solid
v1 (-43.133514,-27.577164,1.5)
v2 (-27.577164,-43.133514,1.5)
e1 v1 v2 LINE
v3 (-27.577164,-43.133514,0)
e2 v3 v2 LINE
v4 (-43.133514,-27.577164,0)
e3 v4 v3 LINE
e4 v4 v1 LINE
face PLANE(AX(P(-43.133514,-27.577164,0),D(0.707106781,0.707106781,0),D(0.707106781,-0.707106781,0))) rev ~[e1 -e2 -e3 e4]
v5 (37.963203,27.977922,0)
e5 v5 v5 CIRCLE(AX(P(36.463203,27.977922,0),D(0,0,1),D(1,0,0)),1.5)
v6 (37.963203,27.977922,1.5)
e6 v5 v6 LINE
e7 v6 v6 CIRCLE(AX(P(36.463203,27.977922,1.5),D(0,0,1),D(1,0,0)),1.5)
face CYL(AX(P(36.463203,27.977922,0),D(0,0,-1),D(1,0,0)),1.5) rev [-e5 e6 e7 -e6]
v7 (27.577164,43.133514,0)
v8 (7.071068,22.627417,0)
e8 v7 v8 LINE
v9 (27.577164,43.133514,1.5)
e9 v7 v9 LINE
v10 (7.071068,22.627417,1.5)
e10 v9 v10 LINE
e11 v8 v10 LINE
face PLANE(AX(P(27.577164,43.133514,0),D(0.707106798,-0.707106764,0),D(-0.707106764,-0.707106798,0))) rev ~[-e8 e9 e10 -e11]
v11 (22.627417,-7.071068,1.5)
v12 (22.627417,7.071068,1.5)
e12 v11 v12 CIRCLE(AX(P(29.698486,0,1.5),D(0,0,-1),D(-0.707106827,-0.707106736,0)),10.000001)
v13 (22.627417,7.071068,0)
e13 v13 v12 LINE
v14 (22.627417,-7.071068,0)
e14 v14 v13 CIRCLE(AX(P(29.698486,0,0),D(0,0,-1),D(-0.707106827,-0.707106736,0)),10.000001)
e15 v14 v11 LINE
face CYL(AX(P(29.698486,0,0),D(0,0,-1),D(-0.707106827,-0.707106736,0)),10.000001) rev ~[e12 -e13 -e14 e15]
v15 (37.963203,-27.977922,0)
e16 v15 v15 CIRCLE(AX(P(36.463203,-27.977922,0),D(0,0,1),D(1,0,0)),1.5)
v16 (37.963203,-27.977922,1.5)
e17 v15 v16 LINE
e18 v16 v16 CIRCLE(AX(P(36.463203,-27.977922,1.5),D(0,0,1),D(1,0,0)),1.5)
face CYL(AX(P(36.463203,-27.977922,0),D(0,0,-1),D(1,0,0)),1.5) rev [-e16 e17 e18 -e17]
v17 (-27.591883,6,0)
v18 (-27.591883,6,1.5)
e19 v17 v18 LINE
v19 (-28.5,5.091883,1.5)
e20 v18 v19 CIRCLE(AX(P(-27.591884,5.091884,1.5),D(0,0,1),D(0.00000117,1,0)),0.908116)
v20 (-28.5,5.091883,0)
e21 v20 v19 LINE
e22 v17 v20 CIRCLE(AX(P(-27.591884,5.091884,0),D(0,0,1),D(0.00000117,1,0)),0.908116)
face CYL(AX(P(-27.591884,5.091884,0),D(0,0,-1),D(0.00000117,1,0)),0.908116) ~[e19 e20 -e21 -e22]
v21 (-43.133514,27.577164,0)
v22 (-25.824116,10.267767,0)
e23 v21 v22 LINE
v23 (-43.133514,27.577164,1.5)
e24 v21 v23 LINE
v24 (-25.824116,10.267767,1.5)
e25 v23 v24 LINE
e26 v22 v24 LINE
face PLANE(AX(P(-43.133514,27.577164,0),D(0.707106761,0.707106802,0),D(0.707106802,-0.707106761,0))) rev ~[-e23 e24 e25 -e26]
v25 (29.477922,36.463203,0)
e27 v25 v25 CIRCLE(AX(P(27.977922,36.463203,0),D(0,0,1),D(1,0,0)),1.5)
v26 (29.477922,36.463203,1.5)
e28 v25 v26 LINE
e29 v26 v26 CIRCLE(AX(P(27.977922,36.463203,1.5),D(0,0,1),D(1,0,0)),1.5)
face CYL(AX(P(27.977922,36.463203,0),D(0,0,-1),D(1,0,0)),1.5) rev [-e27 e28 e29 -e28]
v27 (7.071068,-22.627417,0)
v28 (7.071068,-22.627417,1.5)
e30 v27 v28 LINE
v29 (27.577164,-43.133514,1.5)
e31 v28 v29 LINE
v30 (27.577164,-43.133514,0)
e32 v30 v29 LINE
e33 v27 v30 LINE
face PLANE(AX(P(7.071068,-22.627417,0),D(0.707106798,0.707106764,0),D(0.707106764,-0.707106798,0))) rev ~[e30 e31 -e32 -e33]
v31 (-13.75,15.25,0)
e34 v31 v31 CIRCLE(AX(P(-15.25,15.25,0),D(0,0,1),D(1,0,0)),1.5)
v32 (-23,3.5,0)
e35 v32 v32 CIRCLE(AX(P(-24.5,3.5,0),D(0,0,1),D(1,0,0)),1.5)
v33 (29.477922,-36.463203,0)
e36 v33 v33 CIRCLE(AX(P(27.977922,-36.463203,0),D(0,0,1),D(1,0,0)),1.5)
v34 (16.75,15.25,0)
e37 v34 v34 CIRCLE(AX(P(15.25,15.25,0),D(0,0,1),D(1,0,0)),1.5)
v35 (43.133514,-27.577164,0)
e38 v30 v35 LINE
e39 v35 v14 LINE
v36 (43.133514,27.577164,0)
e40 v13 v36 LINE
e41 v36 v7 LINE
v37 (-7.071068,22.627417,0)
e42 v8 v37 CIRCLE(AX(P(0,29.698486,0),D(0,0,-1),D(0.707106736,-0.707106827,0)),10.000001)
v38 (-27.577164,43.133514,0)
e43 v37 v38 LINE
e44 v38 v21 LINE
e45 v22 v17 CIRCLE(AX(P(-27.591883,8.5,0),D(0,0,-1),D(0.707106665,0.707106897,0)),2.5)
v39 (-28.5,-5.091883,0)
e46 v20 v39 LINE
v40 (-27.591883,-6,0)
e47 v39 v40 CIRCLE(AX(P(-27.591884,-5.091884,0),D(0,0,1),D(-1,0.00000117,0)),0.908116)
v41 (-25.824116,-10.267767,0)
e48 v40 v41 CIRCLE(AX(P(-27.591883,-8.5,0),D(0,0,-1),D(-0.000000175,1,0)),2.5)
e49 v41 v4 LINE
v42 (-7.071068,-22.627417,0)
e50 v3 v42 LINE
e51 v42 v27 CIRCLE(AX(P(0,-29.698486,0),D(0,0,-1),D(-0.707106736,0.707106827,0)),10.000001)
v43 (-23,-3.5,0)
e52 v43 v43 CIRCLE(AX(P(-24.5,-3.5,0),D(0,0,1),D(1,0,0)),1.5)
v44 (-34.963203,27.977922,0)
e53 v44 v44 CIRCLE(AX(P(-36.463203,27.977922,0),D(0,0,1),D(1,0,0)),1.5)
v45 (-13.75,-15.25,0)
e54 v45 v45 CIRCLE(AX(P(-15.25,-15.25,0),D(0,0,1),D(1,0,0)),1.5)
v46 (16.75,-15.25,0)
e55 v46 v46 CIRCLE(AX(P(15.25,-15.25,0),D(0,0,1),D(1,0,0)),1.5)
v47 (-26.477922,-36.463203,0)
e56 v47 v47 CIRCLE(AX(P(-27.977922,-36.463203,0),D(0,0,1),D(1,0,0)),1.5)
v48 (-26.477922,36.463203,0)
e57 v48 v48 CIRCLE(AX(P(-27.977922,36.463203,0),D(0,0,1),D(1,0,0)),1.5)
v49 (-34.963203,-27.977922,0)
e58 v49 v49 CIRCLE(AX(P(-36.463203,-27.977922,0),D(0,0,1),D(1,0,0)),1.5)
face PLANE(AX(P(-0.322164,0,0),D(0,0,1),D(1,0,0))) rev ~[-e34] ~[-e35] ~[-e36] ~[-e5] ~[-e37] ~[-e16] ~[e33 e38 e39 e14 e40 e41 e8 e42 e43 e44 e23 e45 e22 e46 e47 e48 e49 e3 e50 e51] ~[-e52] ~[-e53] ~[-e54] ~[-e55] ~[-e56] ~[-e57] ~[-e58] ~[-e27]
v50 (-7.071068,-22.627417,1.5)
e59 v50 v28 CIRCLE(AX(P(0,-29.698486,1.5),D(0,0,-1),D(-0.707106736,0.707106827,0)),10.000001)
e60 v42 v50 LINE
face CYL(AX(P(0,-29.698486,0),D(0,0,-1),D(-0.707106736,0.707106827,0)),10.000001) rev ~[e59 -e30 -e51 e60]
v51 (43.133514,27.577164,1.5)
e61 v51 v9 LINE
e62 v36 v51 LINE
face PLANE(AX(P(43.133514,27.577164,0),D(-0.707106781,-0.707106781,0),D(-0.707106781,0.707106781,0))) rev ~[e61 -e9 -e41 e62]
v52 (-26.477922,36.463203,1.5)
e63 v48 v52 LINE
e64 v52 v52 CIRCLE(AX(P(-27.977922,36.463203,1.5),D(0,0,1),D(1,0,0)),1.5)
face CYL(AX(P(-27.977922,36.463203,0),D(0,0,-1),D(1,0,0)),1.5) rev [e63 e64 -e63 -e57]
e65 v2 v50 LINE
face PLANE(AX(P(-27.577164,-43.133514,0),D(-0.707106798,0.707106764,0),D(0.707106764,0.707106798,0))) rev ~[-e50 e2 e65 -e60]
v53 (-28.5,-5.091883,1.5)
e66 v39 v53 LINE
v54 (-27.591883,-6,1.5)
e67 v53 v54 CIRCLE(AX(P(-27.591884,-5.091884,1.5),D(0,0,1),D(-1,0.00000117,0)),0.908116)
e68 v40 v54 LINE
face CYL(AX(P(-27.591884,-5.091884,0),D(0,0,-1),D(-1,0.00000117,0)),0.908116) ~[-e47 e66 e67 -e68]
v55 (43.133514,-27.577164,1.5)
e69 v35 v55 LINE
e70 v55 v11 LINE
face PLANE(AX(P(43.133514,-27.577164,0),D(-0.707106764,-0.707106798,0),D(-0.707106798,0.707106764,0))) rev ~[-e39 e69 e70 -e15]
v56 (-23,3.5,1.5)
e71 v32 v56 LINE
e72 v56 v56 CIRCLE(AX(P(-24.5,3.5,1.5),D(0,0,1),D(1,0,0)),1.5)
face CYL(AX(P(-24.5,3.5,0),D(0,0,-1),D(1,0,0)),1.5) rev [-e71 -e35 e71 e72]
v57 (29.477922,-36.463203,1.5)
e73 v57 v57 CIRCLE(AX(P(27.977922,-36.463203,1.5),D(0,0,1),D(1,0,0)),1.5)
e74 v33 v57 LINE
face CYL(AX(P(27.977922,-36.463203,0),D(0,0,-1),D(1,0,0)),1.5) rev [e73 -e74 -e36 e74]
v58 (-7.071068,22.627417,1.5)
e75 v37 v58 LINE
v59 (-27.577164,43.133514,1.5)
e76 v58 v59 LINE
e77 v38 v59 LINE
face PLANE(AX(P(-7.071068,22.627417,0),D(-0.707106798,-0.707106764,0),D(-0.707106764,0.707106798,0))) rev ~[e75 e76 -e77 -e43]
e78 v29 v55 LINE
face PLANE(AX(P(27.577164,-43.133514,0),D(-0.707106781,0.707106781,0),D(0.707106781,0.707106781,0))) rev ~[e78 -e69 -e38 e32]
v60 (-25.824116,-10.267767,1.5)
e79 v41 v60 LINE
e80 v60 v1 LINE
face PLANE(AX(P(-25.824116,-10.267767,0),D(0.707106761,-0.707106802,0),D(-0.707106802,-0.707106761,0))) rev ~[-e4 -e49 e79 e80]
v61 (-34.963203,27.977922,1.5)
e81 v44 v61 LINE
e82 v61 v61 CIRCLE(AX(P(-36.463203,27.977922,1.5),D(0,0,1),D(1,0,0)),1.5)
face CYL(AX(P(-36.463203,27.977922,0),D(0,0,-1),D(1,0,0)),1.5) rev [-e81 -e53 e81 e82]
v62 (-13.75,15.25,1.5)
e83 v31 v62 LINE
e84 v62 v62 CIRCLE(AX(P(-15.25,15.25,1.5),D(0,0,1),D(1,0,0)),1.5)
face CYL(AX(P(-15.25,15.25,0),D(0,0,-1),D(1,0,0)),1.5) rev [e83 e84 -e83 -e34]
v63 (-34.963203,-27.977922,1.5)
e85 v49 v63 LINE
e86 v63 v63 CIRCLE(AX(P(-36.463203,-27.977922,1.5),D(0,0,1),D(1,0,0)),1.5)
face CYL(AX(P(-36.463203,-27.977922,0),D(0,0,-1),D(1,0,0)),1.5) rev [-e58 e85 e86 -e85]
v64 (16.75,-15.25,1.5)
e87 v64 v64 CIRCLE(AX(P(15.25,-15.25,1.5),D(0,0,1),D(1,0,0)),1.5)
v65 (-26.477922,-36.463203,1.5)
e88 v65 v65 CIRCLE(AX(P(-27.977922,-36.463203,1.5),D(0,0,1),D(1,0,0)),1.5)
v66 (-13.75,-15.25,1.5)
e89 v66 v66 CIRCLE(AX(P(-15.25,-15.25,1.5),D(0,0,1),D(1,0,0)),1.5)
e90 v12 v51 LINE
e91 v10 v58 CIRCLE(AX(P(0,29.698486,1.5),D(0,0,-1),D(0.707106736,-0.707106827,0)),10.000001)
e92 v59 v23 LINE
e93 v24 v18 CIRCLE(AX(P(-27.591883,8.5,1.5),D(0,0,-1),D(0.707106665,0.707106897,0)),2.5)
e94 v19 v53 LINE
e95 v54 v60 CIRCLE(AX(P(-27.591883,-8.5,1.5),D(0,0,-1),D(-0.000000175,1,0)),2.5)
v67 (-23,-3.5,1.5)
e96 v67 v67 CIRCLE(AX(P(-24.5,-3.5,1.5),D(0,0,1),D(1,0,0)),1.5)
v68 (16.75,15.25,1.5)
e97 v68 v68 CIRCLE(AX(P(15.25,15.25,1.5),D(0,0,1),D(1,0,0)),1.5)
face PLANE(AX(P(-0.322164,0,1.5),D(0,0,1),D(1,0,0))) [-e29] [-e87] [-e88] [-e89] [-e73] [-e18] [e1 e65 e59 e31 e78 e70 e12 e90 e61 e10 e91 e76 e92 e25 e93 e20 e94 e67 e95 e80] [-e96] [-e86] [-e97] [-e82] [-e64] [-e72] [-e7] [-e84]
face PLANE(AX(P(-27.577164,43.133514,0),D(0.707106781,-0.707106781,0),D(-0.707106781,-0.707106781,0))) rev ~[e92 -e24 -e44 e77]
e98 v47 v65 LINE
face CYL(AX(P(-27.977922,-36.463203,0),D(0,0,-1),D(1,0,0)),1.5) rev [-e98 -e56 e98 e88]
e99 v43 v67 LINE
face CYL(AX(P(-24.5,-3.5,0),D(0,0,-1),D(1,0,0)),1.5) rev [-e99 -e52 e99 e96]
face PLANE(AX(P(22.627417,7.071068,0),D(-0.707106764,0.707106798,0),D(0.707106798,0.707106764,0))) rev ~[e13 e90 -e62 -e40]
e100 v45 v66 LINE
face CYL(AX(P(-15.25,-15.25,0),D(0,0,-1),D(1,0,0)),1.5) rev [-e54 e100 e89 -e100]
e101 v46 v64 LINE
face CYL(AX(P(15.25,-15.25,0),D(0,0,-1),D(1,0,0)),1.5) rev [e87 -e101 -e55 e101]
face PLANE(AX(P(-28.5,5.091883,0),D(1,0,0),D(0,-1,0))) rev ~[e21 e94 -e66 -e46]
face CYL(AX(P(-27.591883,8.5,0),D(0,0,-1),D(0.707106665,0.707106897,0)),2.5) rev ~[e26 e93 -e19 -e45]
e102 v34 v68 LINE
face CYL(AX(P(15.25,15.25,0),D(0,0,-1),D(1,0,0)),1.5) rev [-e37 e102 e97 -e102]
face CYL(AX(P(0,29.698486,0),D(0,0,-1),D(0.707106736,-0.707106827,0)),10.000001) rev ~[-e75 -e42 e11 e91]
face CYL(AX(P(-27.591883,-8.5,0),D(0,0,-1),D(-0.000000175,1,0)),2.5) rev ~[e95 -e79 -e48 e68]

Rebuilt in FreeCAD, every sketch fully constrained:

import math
import FreeCAD as App
import Part
import Sketcher
Q = App.Units.Quantity

doc = App.newDocument("Part")
body = doc.addObject("PartDesign::Body", "Body")

sketch1 = body.newObject("Sketcher::SketchObject", "Sketch")
sketch1.AttachmentSupport = (doc.getObject("XY_Plane"), [""])
sketch1.MapMode = "FlatFace"
sketch1.addGeometry(Part.LineSegment(App.Vector(-27.6, 43.1, 0), App.Vector(-43.1, 27.6, 0)), False)
sketch1.addGeometry(Part.LineSegment(App.Vector(-43.1, 27.6, 0), App.Vector(-25.8, 10.3, 0)), False)
sketch1.addGeometry(Part.ArcOfCircle(Part.Circle(App.Vector(-27.6, 8.5, 0), App.Vector(0, 0, 1), 2.5), math.radians(-90), math.radians(45)), False)
sketch1.addGeometry(Part.ArcOfCircle(Part.Circle(App.Vector(-27.6, 5.1, 0), App.Vector(0, 0, 1), 0.9), math.radians(90), math.radians(180)), False)
sketch1.addGeometry(Part.LineSegment(App.Vector(-28.5, 5.1, 0), App.Vector(-28.5, -5.1, 0)), False)
sketch1.addGeometry(Part.ArcOfCircle(Part.Circle(App.Vector(-27.6, -5.1, 0), App.Vector(0, 0, 1), 0.9), math.radians(180), math.radians(270)), False)
sketch1.addGeometry(Part.ArcOfCircle(Part.Circle(App.Vector(-27.6, -8.5, 0), App.Vector(0, 0, 1), 2.5), math.radians(-45), math.radians(90)), False)
sketch1.addGeometry(Part.LineSegment(App.Vector(-25.8, -10.3, 0), App.Vector(-43.1, -27.6, 0)), False)
sketch1.addGeometry(Part.LineSegment(App.Vector(-43.1, -27.6, 0), App.Vector(-27.6, -43.1, 0)), False)
sketch1.addGeometry(Part.LineSegment(App.Vector(-27.6, -43.1, 0), App.Vector(-7.1, -22.6, 0)), False)
sketch1.addGeometry(Part.ArcOfCircle(Part.Circle(App.Vector(0, -29.7, 0), App.Vector(0, 0, 1), 10), math.radians(45), math.radians(135)), False)
sketch1.addGeometry(Part.LineSegment(App.Vector(7.1, -22.6, 0), App.Vector(27.6, -43.1, 0)), False)
sketch1.addGeometry(Part.LineSegment(App.Vector(27.6, -43.1, 0), App.Vector(43.1, -27.6, 0)), False)
sketch1.addGeometry(Part.LineSegment(App.Vector(43.1, -27.6, 0), App.Vector(22.6, -7.1, 0)), False)
sketch1.addGeometry(Part.ArcOfCircle(Part.Circle(App.Vector(29.7, 0, 0), App.Vector(0, 0, 1), 10), math.radians(135), math.radians(225)), False)
sketch1.addGeometry(Part.LineSegment(App.Vector(22.6, 7.1, 0), App.Vector(43.1, 27.6, 0)), False)
sketch1.addGeometry(Part.LineSegment(App.Vector(43.1, 27.6, 0), App.Vector(27.6, 43.1, 0)), False)
sketch1.addGeometry(Part.LineSegment(App.Vector(27.6, 43.1, 0), App.Vector(7.1, 22.6, 0)), False)
sketch1.addGeometry(Part.ArcOfCircle(Part.Circle(App.Vector(0, 29.7, 0), App.Vector(0, 0, 1), 10), math.radians(-135), math.radians(-45)), False)
sketch1.addGeometry(Part.LineSegment(App.Vector(-7.1, 22.6, 0), App.Vector(-27.6, 43.1, 0)), False)
sketch1.addGeometry(Part.Circle(App.Vector(-28, -36.5, 0), App.Vector(0, 0, 1), 1.5), False)
sketch1.addGeometry(Part.Circle(App.Vector(-36.5, -28, 0), App.Vector(0, 0, 1), 1.5), False)
sketch1.addGeometry(Part.Circle(App.Vector(-24.5, -3.5, 0), App.Vector(0, 0, 1), 1.5), False)
sketch1.addGeometry(Part.Circle(App.Vector(-15.2, -15.2, 0), App.Vector(0, 0, 1), 1.5), False)
sketch1.addGeometry(Part.Circle(App.Vector(28, -36.5, 0), App.Vector(0, 0, 1), 1.5), False)
sketch1.addGeometry(Part.Circle(App.Vector(36.5, -28, 0), App.Vector(0, 0, 1), 1.5), False)
sketch1.addGeometry(Part.Circle(App.Vector(15.2, -15.2, 0), App.Vector(0, 0, 1), 1.5), False)
sketch1.addGeometry(Part.Circle(App.Vector(-24.5, 3.5, 0), App.Vector(0, 0, 1), 1.5), False)
sketch1.addGeometry(Part.Circle(App.Vector(-15.2, 15.2, 0), App.Vector(0, 0, 1), 1.5), False)
sketch1.addGeometry(Part.Circle(App.Vector(-36.5, 28, 0), App.Vector(0, 0, 1), 1.5), False)
sketch1.addGeometry(Part.Circle(App.Vector(-28, 36.5, 0), App.Vector(0, 0, 1), 1.5), False)
sketch1.addGeometry(Part.Circle(App.Vector(15.2, 15.2, 0), App.Vector(0, 0, 1), 1.5), False)
sketch1.addGeometry(Part.Circle(App.Vector(36.5, 28, 0), App.Vector(0, 0, 1), 1.5), False)
sketch1.addGeometry(Part.Circle(App.Vector(28, 36.5, 0), App.Vector(0, 0, 1), 1.5), False)
sketch1.addConstraint(Sketcher.Constraint("Coincident", 0, 2, 1, 1))
sketch1.addConstraint(Sketcher.Constraint("Tangent", 1, 2, 2, 2))
sketch1.addConstraint(Sketcher.Constraint("Tangent", 2, 1, 3, 1))
sketch1.addConstraint(Sketcher.Constraint("Tangent", 3, 2, 4, 1))
sketch1.addConstraint(Sketcher.Constraint("Tangent", 4, 2, 5, 1))
sketch1.addConstraint(Sketcher.Constraint("Tangent", 5, 2, 6, 2))
sketch1.addConstraint(Sketcher.Constraint("Tangent", 6, 1, 7, 1))
sketch1.addConstraint(Sketcher.Constraint("Coincident", 7, 2, 8, 1))
sketch1.addConstraint(Sketcher.Constraint("Coincident", 8, 2, 9, 1))
sketch1.addConstraint(Sketcher.Constraint("Tangent", 9, 2, 10, 2))
sketch1.addConstraint(Sketcher.Constraint("Tangent", 10, 1, 11, 1))
sketch1.addConstraint(Sketcher.Constraint("Coincident", 11, 2, 12, 1))
sketch1.addConstraint(Sketcher.Constraint("Coincident", 12, 2, 13, 1))
sketch1.addConstraint(Sketcher.Constraint("Tangent", 13, 2, 14, 2))
sketch1.addConstraint(Sketcher.Constraint("Tangent", 14, 1, 15, 1))
sketch1.addConstraint(Sketcher.Constraint("Coincident", 15, 2, 16, 1))
sketch1.addConstraint(Sketcher.Constraint("Coincident", 16, 2, 17, 1))
sketch1.addConstraint(Sketcher.Constraint("Tangent", 17, 2, 18, 2))
sketch1.addConstraint(Sketcher.Constraint("Tangent", 18, 1, 19, 1))
sketch1.addConstraint(Sketcher.Constraint("Coincident", 19, 2, 0, 1))
sketch1.addConstraint(Sketcher.Constraint("Vertical", 4))
sketch1.addConstraint(Sketcher.Constraint("Equal", 3, 5))
sketch1.addConstraint(Sketcher.Constraint("Equal", 2, 6))
sketch1.addConstraint(Sketcher.Constraint("Equal", 10, 14))
sketch1.addConstraint(Sketcher.Constraint("Equal", 14, 18))
sketch1.addConstraint(Sketcher.Constraint("Equal", 20, 21))
sketch1.addConstraint(Sketcher.Constraint("Equal", 21, 22))
sketch1.addConstraint(Sketcher.Constraint("Equal", 22, 23))
sketch1.addConstraint(Sketcher.Constraint("Equal", 23, 24))
sketch1.addConstraint(Sketcher.Constraint("Equal", 24, 25))
sketch1.addConstraint(Sketcher.Constraint("Equal", 25, 26))
sketch1.addConstraint(Sketcher.Constraint("Equal", 26, 27))
sketch1.addConstraint(Sketcher.Constraint("Equal", 27, 28))
sketch1.addConstraint(Sketcher.Constraint("Equal", 28, 29))
sketch1.addConstraint(Sketcher.Constraint("Equal", 29, 30))
sketch1.addConstraint(Sketcher.Constraint("Equal", 30, 31))
sketch1.addConstraint(Sketcher.Constraint("Equal", 31, 32))
sketch1.addConstraint(Sketcher.Constraint("Equal", 32, 33))
sketch1.addConstraint(Sketcher.Constraint("Symmetric", 10, 3, 18, 3, -1, 1))
sketch1.addConstraint(Sketcher.Constraint("Symmetric", 26, 3, 28, 3, -1, 1))
sketch1.addConstraint(Sketcher.Constraint("Symmetric", 25, 3, 29, 3, -1, 1))
sketch1.addConstraint(Sketcher.Constraint("Symmetric", 24, 3, 30, 3, -1, 1))
sketch1.addConstraint(Sketcher.Constraint("Symmetric", 23, 3, 31, 3, -1, 1))
sketch1.addConstraint(Sketcher.Constraint("Symmetric", 21, 3, 32, 3, -1, 1))
sketch1.addConstraint(Sketcher.Constraint("Symmetric", 20, 3, 33, 3, -1, 1))
sketch1.addConstraint(Sketcher.Constraint("Symmetric", 0, 2, 12, 2, -1, 1))
sketch1.addConstraint(Sketcher.Constraint("Symmetric", 7, 2, 15, 2, -1, 1))
sketch1.addConstraint(Sketcher.Constraint("Symmetric", 8, 2, 16, 2, -1, 1))
sketch1.addConstraint(Sketcher.Constraint("Symmetric", 11, 2, 19, 2, -1, 1))
sketch1.addConstraint(Sketcher.Constraint("Symmetric", 20, 3, 24, 3, -2))
sketch1.addConstraint(Sketcher.Constraint("Symmetric", 21, 3, 25, 3, -2))
sketch1.addConstraint(Sketcher.Constraint("Symmetric", 23, 3, 26, 3, -2))
sketch1.addConstraint(Sketcher.Constraint("Symmetric", 9, 2, 10, 1, -2))
sketch1.addConstraint(Sketcher.Constraint("Symmetric", 7, 2, 12, 2, -2))
sketch1.addConstraint(Sketcher.Constraint("Symmetric", 2, 3, 6, 3, -1))
sketch1.addConstraint(Sketcher.Constraint("Symmetric", 22, 3, 27, 3, -1))
sketch1.addConstraint(Sketcher.Constraint("PointOnObject", 14, 3, -1))
sketch1.addConstraint(Sketcher.Constraint("Perpendicular", 0, 1))
sketch1.addConstraint(Sketcher.Constraint("Perpendicular", 1, 7))
sketch1.addConstraint(Sketcher.Constraint("Perpendicular", 7, 8))
sketch1.addConstraint(Sketcher.Constraint("Perpendicular", 8, 9))
sketch1.addConstraint(Sketcher.Constraint("Perpendicular", 12, 13))
sketch1.addConstraint(Sketcher.Constraint("Vertical", 2, 3, 3, 3))
sketch1.addConstraint(Sketcher.Constraint("Equal", 11, 13))
sketch1.addConstraint(Sketcher.Constraint("Diameter", 20, Q("3 mm")))
sketch1.addConstraint(Sketcher.Constraint("Radius", 10, Q("10.000001 mm")))
sketch1.addConstraint(Sketcher.Constraint("Radius", 2, Q("2.5 mm")))
sketch1.addConstraint(Sketcher.Constraint("Distance", 0, Q("22.000001 mm")))
sketch1.addConstraint(Sketcher.Constraint("Distance", 9, Q("29 mm")))
sketch1.addConstraint(Sketcher.Constraint("DistanceY", -1, 1, 2, 1, Q("6 mm")))
sketch1.addConstraint(Sketcher.Constraint("DistanceY", 6, 3, 22, 3, Q("5 mm")))
sketch1.addConstraint(Sketcher.Constraint("DistanceX", 3, 2, 27, 3, Q("4 mm")))
sketch1.addConstraint(Sketcher.Constraint("DistanceX", 22, 3, -1, 1, Q("24.5 mm")))
sketch1.addConstraint(Sketcher.Constraint("DistanceX", 23, 3, 26, 3, Q("30.5 mm")))
sketch1.addConstraint(Sketcher.Constraint("DistanceY", 26, 3, 31, 3, Q("30.5 mm")))
sketch1.addConstraint(Sketcher.Constraint("DistanceX", 20, 3, -1, 1, Q("27.977922 mm")))
sketch1.addConstraint(Sketcher.Constraint("DistanceY", 21, 3, -1, 1, Q("27.977922 mm")))
sketch1.addConstraint(Sketcher.Constraint("DistanceY", 20, 3, 5, 3, Q("31.371319 mm")))
sketch1.addConstraint(Sketcher.Constraint("DistanceX", 21, 3, 20, 3, Q("8.485281 mm")))
pad1 = body.newObject("PartDesign::Pad", "Pad")
pad1.Profile = sketch1
pad1.Length = 1.5

doc.recompute()
